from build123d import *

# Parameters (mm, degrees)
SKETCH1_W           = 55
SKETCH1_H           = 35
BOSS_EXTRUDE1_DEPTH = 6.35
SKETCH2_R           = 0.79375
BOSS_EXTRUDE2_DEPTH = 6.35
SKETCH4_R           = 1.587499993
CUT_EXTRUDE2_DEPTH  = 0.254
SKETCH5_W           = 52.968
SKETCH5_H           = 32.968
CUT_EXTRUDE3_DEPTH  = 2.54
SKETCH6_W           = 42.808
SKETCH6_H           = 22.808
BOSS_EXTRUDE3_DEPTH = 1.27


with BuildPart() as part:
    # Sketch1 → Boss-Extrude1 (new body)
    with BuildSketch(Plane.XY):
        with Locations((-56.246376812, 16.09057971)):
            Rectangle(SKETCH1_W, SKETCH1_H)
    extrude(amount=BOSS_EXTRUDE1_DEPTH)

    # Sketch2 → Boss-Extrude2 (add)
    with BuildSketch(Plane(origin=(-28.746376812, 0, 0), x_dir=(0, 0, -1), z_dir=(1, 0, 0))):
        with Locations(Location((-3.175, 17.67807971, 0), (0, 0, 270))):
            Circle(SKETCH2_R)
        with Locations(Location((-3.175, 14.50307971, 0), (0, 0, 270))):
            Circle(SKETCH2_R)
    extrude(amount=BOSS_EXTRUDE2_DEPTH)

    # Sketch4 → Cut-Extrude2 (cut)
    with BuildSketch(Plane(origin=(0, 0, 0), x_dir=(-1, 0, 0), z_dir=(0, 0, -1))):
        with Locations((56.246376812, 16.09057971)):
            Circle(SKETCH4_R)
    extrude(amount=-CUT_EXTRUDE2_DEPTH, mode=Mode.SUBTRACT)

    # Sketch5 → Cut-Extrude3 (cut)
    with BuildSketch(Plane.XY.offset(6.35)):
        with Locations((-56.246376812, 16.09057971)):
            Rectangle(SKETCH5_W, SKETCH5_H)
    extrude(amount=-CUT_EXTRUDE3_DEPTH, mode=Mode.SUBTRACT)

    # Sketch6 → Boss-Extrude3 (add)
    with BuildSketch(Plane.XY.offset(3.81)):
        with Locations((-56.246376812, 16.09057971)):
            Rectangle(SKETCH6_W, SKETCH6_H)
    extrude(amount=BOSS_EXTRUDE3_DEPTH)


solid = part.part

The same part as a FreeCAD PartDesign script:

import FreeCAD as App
import Part
import Sketcher

V = App.Vector
Q = App.Units.Quantity


def add_polygon(sketch, points):
    """Adds a closed chain of lines whose ends are joined by coincident constraints."""
    first, n = sketch.GeometryCount, len(points)
    for a, b in zip(points, points[1:] + points[:1]):
        sketch.addGeometry(Part.LineSegment(App.Vector(*a, 0), App.Vector(*b, 0)), False)
    for i in range(n):
        sketch.addConstraint(Sketcher.Constraint("Coincident", first + i, 2, first + (i + 1) % n, 1))

doc = App.newDocument("Part")
body = doc.addObject("PartDesign::Body", "Body")

# Sketch on XY plane
sketch1 = body.newObject("Sketcher::SketchObject", "Sketch")
sketch1.AttachmentSupport = (doc.getObject("XY_Plane"), [""])
sketch1.MapMode = "FlatFace"
add_polygon(sketch1, [(-84, 34), (-84, -1), (-29, -1), (-29, 34)])  # lines 0-3
sketch1.addConstraint(Sketcher.Constraint("Vertical", 0))
sketch1.addConstraint(Sketcher.Constraint("Horizontal", 1))
sketch1.addConstraint(Sketcher.Constraint("Vertical", 2))
sketch1.addConstraint(Sketcher.Constraint("Horizontal", 3))
sketch1.addConstraint(Sketcher.Constraint("DistanceX", 1, 1, 1, 2, Q("55 mm")))
sketch1.addConstraint(Sketcher.Constraint("DistanceY", 0, 2, 0, 1, Q("35 mm")))
sketch1.addConstraint(Sketcher.Constraint("DistanceY", 0, 2, -1, 1, Q("1.40942 mm")))
sketch1.addConstraint(Sketcher.Constraint("DistanceX", 0, 2, -1, 1, Q("83.746377 mm")))
pad1 = body.newObject("PartDesign::Pad", "Pad")
pad1.Profile = sketch1
pad1.Length = Q("0.25 in")

# Sketch on YZ plane
sketch2 = body.newObject("Sketcher::SketchObject", "Sketch001")
sketch2.AttachmentSupport = (doc.getObject("YZ_Plane"), [""])
sketch2.MapMode = "FlatFace"
sketch2.AttachmentOffset = App.Placement(V(0, 0, -28.746377), App.Rotation())
sketch2.addGeometry(Part.Circle(V(17.7, 3.2, 0), V(0, 0, 1), 0.8), False)
sketch2.addGeometry(Part.Circle(V(14.5, 3.2, 0), V(0, 0, 1), 0.8), False)
sketch2.addConstraint(Sketcher.Constraint("Equal", 0, 1))
sketch2.addConstraint(Sketcher.Constraint("Horizontal", 0, 3, 1, 3))
sketch2.addConstraint(Sketcher.Constraint("Diameter", 0, Q("0.0625 in")))
sketch2.addConstraint(Sketcher.Constraint("DistanceY", -1, 1, 0, 3, Q("0.125 in")))
sketch2.addConstraint(Sketcher.Constraint("DistanceX", 1, 3, 0, 3, Q("0.125 in")))
sketch2.addConstraint(Sketcher.Constraint("DistanceX", -1, 1, 0, 3, Q("17.67808 mm")))
pad2 = body.newObject("PartDesign::Pad", "Pad001")
pad2.Profile = sketch2
pad2.Length = Q("0.25 in")

# Sketch on XY plane
sketch3 = body.newObject("Sketcher::SketchObject", "Sketch002")
sketch3.AttachmentSupport = (doc.getObject("XY_Plane"), [""])
sketch3.MapMode = "FlatFace"
sketch3.addGeometry(Part.Circle(V(-56.2, 16.1, 0), V(0, 0, 1), 1.6), False)
sketch3.addConstraint(Sketcher.Constraint("Diameter", 0, Q("0.125 in")))
sketch3.addConstraint(Sketcher.Constraint("DistanceY", -1, 1, 0, 3, Q("16.09058 mm")))
sketch3.addConstraint(Sketcher.Constraint("DistanceX", 0, 3, -1, 1, Q("56.246377 mm")))
pocket1 = body.newObject("PartDesign::Pocket", "Pocket")
pocket1.Profile = sketch3
pocket1.Length = Q("0.01 in")
pocket1.Reversed = True

# Sketch on XY plane
sketch4 = body.newObject("Sketcher::SketchObject", "Sketch003")
sketch4.AttachmentSupport = (doc.getObject("XY_Plane"), [""])
sketch4.MapMode = "FlatFace"
sketch4.AttachmentOffset = App.Placement(V(0, 0, 0.25 * 25.4), App.Rotation())
add_polygon(sketch4, [(-83, 33), (-83, 0), (-30, 0), (-30, 33)])  # lines 0-3
sketch4.addConstraint(Sketcher.Constraint("Vertical", 0))
sketch4.addConstraint(Sketcher.Constraint("Horizontal", 1))
sketch4.addConstraint(Sketcher.Constraint("Vertical", 2))
sketch4.addConstraint(Sketcher.Constraint("Horizontal", 3))
sketch4.addConstraint(Sketcher.Constraint("DistanceX", 1, 1, 1, 2, Q("52.968 mm")))
sketch4.addConstraint(Sketcher.Constraint("DistanceY", 0, 2, 0, 1, Q("32.968 mm")))
sketch4.addConstraint(Sketcher.Constraint("DistanceY", 0, 2, -1, 1, Q("0.39342 mm")))
sketch4.addConstraint(Sketcher.Constraint("DistanceX", 0, 2, -1, 1, Q("82.730377 mm")))
pocket2 = body.newObject("PartDesign::Pocket", "Pocket001")
pocket2.Profile = sketch4
pocket2.Length = Q("0.1 in")

# Sketch on XY plane
sketch5 = body.newObject("Sketcher::SketchObject", "Sketch004")
sketch5.AttachmentSupport = (doc.getObject("XY_Plane"), [""])
sketch5.MapMode = "FlatFace"
sketch5.AttachmentOffset = App.Placement(V(0, 0, 0.15 * 25.4), App.Rotation())
add_polygon(sketch5, [(-78, 27), (-78, 5), (-35, 5), (-35, 27)])  # lines 0-3
sketch5.addConstraint(Sketcher.Constraint("Vertical", 0))
sketch5.addConstraint(Sketcher.Constraint("Horizontal", 1))
sketch5.addConstraint(Sketcher.Constraint("Vertical", 2))
sketch5.addConstraint(Sketcher.Constraint("Horizontal", 3))
sketch5.addConstraint(Sketcher.Constraint("DistanceX", 1, 1, 1, 2, Q("42.808 mm")))
sketch5.addConstraint(Sketcher.Constraint("DistanceY", 0, 2, 0, 1, Q("22.808 mm")))
sketch5.addConstraint(Sketcher.Constraint("DistanceY", -1, 1, 0, 2, Q("4.68658 mm")))
sketch5.addConstraint(Sketcher.Constraint("DistanceX", 0, 2, -1, 1, Q("77.650377 mm")))
pad3 = body.newObject("PartDesign::Pad", "Pad002")
pad3.Profile = sketch5
pad3.Length = Q("0.05 in")

doc.recompute()
